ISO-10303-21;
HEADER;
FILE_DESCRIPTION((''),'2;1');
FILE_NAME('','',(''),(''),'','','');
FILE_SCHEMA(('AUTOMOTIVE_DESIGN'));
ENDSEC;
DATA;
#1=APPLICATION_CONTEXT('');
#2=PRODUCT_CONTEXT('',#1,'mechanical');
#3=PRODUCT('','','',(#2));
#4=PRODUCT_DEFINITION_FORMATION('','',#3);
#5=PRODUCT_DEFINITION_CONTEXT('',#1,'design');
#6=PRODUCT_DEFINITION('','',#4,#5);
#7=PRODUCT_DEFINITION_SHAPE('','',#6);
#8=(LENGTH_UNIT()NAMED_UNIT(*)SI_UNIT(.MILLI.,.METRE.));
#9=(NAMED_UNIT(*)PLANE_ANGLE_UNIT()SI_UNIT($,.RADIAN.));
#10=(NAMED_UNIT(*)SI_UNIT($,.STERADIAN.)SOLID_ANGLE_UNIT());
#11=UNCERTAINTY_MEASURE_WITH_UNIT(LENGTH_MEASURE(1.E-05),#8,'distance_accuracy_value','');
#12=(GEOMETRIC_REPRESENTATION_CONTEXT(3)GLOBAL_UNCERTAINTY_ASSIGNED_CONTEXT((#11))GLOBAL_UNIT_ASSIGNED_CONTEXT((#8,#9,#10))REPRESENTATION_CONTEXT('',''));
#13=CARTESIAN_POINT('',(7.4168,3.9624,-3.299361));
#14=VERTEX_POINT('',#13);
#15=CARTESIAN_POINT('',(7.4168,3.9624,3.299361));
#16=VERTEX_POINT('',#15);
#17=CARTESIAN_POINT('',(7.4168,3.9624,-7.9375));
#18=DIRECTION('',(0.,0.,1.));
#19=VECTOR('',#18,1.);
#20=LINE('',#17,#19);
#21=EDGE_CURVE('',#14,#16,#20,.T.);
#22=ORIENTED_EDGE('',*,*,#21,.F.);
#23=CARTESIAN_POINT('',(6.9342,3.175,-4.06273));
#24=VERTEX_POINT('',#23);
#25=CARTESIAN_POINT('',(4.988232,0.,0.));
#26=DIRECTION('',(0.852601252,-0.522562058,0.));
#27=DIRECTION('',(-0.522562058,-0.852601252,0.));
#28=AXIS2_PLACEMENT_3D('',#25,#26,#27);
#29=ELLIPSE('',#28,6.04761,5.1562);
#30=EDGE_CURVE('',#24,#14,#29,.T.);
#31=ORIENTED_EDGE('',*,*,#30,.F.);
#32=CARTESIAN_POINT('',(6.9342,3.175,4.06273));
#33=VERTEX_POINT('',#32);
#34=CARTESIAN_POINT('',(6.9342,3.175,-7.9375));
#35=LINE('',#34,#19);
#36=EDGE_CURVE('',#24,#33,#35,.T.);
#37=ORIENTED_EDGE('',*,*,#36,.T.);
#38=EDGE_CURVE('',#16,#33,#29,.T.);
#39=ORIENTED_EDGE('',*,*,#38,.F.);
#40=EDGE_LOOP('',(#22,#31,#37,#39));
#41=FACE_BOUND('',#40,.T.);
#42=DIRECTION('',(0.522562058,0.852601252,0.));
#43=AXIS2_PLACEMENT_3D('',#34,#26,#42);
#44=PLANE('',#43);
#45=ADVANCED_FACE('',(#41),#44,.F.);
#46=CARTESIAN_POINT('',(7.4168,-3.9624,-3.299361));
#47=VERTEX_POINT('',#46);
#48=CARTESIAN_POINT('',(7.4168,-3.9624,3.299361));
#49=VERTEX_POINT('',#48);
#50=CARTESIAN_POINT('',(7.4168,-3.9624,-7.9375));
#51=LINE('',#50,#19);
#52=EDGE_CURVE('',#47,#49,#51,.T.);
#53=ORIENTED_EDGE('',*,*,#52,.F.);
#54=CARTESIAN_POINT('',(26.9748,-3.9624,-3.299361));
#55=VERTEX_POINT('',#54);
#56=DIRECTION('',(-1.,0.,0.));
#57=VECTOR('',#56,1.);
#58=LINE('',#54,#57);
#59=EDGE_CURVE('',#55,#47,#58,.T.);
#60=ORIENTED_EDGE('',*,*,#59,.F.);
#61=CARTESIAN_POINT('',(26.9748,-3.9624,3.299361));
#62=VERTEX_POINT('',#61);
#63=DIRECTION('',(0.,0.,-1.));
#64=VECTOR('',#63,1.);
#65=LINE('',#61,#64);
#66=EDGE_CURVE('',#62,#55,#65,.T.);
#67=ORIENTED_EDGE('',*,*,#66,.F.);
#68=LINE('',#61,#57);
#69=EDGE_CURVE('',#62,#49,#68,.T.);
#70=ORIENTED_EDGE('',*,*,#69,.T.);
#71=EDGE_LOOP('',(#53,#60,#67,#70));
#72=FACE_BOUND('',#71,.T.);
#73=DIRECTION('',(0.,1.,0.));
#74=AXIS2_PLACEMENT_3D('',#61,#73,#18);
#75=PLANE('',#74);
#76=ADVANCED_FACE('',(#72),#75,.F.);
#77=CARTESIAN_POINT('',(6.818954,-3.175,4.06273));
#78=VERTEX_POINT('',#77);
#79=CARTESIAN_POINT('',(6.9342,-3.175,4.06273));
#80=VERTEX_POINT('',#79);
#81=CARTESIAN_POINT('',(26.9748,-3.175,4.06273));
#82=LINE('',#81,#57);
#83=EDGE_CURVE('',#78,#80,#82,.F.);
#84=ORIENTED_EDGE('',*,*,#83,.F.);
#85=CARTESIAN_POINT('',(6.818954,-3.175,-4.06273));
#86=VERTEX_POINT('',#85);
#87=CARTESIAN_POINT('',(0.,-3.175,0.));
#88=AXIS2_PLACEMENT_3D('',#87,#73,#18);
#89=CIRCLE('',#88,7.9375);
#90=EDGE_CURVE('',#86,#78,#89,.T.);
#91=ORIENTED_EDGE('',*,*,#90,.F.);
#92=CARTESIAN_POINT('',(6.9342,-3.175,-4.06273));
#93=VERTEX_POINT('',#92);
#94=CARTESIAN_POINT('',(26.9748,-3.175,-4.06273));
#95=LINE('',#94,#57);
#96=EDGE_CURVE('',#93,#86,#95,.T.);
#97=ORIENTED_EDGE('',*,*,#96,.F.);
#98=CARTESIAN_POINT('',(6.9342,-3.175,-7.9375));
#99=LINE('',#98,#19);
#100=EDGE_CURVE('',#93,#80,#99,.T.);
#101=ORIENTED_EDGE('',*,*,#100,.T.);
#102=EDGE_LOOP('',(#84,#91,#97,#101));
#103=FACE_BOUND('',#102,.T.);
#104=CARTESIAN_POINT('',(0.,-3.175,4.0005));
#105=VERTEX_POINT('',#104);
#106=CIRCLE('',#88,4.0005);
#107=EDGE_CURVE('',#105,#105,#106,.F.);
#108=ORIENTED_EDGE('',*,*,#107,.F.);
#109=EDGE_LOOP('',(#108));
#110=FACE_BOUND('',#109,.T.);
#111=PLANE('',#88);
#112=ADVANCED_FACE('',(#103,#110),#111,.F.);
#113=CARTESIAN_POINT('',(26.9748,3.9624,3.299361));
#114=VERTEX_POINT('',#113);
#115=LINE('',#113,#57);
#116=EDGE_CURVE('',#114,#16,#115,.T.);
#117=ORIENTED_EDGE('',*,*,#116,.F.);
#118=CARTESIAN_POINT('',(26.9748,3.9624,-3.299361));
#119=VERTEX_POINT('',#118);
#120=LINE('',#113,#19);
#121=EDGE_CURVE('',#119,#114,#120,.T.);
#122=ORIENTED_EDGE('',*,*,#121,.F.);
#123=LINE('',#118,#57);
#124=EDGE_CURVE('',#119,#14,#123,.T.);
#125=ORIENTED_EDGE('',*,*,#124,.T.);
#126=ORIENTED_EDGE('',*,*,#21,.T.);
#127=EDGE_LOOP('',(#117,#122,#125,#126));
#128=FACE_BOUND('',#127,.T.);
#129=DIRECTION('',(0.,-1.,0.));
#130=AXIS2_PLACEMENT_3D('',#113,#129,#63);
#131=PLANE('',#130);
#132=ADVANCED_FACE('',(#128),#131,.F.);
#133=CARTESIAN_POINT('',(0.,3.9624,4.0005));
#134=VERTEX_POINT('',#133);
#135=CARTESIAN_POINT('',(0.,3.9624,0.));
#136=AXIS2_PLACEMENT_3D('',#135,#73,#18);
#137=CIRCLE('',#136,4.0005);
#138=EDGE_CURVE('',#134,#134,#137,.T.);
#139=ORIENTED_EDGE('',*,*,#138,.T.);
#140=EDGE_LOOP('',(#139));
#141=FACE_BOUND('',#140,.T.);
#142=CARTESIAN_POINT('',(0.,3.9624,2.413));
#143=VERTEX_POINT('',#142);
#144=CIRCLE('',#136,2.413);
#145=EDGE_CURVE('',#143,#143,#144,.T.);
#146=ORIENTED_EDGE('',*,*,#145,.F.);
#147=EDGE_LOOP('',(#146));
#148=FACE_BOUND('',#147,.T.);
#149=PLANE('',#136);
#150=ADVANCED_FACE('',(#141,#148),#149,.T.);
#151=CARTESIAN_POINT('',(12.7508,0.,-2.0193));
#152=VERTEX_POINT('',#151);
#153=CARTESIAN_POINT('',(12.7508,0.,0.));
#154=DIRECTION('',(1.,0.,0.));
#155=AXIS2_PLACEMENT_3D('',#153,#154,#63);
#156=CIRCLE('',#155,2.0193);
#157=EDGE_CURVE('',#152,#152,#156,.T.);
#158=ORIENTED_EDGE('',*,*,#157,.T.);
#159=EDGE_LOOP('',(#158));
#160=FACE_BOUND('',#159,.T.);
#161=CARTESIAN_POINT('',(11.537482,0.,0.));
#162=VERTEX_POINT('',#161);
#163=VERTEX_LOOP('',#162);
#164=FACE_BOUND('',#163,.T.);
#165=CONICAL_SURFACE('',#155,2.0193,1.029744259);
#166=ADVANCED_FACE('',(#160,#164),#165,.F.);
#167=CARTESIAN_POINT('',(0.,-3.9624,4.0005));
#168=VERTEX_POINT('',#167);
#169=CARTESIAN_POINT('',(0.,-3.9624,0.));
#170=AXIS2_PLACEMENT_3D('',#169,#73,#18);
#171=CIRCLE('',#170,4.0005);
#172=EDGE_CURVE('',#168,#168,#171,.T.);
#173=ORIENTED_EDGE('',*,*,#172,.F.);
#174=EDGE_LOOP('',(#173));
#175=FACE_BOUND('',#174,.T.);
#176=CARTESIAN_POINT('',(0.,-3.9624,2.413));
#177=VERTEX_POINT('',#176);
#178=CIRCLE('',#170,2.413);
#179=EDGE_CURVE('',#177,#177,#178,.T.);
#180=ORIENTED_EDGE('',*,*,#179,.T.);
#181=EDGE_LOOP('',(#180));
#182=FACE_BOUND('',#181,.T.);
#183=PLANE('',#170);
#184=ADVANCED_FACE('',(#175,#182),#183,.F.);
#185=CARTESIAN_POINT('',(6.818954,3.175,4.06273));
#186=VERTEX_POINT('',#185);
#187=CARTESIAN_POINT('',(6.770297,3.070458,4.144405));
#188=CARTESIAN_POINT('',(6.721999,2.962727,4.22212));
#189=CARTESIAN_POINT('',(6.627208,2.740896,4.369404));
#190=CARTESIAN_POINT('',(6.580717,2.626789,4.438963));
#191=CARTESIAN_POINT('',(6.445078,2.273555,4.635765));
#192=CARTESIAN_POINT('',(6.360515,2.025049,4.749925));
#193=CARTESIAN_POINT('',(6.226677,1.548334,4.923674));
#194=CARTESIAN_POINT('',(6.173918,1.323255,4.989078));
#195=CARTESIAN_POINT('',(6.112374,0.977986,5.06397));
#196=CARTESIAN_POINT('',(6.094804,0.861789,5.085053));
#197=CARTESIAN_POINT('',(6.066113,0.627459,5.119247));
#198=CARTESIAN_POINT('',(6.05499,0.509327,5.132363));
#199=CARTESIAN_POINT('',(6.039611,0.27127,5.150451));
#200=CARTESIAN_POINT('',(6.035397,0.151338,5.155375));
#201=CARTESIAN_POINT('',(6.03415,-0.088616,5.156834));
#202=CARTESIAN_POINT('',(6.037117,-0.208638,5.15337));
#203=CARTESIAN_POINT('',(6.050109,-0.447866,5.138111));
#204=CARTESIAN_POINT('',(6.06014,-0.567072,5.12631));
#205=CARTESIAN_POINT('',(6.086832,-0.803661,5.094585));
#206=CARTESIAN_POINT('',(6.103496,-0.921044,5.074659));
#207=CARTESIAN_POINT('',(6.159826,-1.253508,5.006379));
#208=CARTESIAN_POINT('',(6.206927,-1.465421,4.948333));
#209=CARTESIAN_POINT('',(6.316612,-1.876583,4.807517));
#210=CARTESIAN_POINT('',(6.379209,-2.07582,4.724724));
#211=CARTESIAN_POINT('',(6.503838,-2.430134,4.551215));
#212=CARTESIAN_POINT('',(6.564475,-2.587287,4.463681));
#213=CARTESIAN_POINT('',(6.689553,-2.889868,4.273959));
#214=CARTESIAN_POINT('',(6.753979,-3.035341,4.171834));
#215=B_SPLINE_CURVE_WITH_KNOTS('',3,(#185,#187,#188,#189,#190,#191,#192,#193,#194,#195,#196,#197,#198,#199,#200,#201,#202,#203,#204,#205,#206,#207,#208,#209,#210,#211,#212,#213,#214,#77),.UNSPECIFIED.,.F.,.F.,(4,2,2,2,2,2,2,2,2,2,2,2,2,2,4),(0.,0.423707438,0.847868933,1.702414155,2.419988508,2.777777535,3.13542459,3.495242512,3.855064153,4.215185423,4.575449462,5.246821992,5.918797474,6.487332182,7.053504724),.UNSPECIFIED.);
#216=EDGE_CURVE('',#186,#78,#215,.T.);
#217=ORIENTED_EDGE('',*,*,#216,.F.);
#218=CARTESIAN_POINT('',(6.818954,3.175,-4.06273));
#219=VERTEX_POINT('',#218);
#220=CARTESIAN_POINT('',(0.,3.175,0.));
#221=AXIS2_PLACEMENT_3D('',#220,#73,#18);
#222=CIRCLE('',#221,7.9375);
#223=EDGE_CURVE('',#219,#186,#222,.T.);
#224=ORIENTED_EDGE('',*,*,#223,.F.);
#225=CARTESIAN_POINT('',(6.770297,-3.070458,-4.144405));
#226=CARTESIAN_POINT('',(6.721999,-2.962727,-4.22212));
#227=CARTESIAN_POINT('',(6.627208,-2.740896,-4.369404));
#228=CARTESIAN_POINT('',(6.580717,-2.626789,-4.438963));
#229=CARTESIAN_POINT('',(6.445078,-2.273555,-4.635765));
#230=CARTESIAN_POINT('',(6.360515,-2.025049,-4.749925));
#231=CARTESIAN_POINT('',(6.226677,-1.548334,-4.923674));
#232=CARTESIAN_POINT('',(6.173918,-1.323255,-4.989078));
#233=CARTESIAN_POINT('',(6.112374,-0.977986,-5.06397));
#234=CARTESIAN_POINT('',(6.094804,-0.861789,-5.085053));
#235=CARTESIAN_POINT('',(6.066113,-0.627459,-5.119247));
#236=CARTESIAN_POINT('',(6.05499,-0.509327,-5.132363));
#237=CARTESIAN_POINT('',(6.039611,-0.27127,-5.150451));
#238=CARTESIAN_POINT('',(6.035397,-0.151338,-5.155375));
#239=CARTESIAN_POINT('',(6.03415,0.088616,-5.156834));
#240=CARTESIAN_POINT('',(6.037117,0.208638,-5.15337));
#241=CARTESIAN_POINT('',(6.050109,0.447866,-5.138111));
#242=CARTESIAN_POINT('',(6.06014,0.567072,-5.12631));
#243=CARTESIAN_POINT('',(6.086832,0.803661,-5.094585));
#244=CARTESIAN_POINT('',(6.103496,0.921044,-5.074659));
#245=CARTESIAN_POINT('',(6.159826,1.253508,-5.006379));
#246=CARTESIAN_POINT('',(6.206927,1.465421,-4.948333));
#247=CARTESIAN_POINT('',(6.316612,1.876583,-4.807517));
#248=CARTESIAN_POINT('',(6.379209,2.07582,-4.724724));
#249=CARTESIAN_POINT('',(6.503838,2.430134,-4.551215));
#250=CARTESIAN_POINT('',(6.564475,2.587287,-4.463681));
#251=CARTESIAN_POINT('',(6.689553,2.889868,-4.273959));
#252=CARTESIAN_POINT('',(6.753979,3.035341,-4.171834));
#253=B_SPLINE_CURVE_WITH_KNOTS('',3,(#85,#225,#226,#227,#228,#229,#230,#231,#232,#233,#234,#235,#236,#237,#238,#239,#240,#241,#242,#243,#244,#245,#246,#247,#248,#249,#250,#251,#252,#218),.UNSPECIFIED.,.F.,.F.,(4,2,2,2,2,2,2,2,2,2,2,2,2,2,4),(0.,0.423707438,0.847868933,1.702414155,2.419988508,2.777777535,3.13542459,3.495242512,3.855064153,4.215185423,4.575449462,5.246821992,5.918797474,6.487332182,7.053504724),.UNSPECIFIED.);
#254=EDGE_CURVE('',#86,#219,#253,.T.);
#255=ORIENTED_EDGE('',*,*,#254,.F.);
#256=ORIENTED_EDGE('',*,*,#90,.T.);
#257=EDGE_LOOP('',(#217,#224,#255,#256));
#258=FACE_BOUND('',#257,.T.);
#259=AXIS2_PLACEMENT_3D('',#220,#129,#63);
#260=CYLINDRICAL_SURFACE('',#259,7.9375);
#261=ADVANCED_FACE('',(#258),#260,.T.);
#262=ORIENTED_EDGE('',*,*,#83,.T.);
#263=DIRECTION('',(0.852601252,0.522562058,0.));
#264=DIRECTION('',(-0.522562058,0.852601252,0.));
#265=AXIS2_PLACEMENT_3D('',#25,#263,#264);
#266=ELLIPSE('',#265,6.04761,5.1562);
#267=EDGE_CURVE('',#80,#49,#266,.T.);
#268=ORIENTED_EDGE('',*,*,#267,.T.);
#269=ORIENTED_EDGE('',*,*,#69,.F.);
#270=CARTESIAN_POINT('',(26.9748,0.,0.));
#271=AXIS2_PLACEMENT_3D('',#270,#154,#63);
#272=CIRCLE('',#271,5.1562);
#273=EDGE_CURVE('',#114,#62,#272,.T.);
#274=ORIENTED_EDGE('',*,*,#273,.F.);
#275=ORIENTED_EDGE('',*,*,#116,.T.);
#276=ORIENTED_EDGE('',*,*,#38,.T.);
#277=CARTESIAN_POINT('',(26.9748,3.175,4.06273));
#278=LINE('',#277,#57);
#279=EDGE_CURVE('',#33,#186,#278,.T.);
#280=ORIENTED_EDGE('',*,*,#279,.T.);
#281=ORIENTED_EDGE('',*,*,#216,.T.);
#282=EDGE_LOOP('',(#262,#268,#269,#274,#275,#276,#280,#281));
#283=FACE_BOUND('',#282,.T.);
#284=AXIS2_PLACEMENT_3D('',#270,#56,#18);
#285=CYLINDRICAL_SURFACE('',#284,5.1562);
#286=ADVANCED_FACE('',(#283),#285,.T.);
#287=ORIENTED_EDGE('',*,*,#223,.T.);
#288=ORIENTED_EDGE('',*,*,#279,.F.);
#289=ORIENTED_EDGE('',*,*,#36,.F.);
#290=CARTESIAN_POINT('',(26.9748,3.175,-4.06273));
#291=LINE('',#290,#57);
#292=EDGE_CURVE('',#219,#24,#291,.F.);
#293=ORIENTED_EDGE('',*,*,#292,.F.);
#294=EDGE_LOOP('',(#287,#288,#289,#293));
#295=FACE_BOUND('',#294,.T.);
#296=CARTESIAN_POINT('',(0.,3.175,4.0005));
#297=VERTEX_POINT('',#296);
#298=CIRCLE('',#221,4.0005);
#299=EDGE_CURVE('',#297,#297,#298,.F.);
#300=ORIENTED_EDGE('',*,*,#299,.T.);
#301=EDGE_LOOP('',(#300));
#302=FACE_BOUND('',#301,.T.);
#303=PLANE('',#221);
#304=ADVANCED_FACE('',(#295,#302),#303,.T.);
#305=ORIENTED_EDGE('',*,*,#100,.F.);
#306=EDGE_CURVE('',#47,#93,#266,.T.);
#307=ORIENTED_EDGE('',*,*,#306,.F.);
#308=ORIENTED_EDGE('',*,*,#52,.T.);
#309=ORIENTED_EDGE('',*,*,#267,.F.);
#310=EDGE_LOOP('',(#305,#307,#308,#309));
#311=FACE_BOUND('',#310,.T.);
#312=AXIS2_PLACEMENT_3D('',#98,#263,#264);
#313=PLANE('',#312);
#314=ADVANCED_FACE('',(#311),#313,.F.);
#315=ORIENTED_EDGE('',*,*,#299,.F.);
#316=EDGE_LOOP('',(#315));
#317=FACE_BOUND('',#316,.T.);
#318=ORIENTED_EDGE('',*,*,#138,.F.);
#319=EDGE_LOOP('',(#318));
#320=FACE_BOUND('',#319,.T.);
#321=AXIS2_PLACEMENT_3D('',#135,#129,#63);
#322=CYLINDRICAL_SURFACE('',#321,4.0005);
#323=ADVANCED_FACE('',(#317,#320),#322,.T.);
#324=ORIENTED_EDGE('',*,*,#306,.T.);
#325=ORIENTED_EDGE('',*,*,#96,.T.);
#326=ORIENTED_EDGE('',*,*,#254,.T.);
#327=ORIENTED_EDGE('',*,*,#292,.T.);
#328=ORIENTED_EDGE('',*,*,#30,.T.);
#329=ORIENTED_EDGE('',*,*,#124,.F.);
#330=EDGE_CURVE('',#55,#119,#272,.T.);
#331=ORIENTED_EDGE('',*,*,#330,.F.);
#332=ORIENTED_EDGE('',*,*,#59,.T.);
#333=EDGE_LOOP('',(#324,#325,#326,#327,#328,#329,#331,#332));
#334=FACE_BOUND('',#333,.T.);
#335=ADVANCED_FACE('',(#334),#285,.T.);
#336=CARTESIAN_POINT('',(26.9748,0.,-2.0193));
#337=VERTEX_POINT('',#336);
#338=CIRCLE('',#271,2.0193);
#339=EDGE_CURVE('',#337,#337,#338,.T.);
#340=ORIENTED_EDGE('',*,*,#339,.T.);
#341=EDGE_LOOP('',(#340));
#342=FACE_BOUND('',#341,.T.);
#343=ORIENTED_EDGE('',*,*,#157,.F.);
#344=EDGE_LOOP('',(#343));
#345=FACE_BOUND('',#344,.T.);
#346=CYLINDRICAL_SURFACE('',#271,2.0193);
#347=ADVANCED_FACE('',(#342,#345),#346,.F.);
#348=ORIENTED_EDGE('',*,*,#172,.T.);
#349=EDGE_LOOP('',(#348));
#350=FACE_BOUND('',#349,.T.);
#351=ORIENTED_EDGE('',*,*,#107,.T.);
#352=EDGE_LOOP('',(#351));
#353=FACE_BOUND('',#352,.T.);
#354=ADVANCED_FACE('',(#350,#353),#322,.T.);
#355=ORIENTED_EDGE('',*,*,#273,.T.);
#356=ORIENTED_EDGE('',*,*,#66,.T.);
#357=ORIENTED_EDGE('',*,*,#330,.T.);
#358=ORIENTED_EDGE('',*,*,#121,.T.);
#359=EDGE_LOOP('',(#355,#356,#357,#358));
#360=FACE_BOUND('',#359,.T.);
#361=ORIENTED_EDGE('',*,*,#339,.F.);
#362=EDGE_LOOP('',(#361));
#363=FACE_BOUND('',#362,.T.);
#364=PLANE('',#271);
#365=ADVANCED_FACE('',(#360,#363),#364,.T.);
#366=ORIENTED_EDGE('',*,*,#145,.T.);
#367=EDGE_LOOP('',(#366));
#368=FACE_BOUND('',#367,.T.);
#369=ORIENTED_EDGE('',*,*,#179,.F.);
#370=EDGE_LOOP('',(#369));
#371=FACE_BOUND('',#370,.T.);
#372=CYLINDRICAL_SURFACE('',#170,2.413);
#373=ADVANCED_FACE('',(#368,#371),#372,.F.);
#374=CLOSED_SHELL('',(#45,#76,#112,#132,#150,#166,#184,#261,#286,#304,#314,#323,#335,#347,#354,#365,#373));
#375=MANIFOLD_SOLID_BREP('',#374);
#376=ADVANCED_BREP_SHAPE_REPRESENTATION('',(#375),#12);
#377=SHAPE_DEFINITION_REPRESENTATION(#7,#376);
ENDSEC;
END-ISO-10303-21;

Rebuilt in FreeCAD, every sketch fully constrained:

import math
import FreeCAD as App
import Part
import Sketcher
from FreeCAD import Vector
Q = App.Units.Quantity


def add_polygon(sketch, points):
    """Adds a closed chain of lines whose ends are joined by coincident constraints."""
    first, n = sketch.GeometryCount, len(points)
    for a, b in zip(points, points[1:] + points[:1]):
        sketch.addGeometry(Part.LineSegment(App.Vector(*a, 0), App.Vector(*b, 0)), False)
    for i in range(n):
        sketch.addConstraint(Sketcher.Constraint("Coincident", first + i, 2, first + (i + 1) % n, 1))

doc = App.newDocument("Part")
params = doc.addObject("Spreadsheet::Sheet", "Params")
for row, (alias, value) in enumerate([
    ("sketch1_diameter", "0.625 in"),
    ("pad1_length", "0.25 in"),
    ("sketch2_radius", "0.203 in"),
    ("pad2_length", "1.062 in"),
    ("sketch3_width", "0.273 in"),
    ("sketch3_width2", "0.292 in"),
    ("sketch3_height", "0.031 in"),
    ("pocket1_length", "0.625 in"),
    ("sketch4_diameter", "0.315 in"),
    ("pad3_length", "0.312 in"),
    ("sketch5_diameter", "0.19 in"),
    ("pocket2_length", "0.312 in"),
    ("sketch6_diameter", "0.159 in"),
    ("hole_diameter", "0.159 in"),
    ("hole_depth", "0.56 in"),
], start=1):
    params.set(f"A{row}", alias)
    params.set(f"B{row}", "=" + value)
    params.setAlias(f"B{row}", alias)

body = doc.addObject("PartDesign::Body", "Body")

# Sketch on XZ plane
sketch1 = doc.addObject("Sketcher::SketchObject", "Sketch")
body.addObject(sketch1)
sketch1.AttachmentSupport = (doc.XZ_Plane, [""])
sketch1.MapMode = "FlatFace"
sketch1.addGeometry(Part.Circle(Vector(0, 0, 0), Vector(0, 0, 1), 7.9375), False)
sketch1.addConstraint([
    Sketcher.Constraint("Coincident", 0, 3, -1, 1),
    Sketcher.Constraint("Diameter", 0, Q("0.625 in")),
])
sketch1.setExpression("Constraints[1]", "Params.sketch1_diameter")
pad1 = doc.addObject("PartDesign::Pad", "Pad")
body.addObject(pad1)
pad1.Profile = sketch1
pad1.setExpression("Length", "Params.pad1_length")
pad1.Midplane = True

# Sketch on YZ plane
sketch2 = doc.addObject("Sketcher::SketchObject", "Sketch001")
body.addObject(sketch2)
sketch2.AttachmentSupport = (doc.YZ_Plane, [""])
sketch2.MapMode = "FlatFace"
sketch2.addGeometry([
    Part.LineSegment(Vector(-3.9624, 3.299361, 0), Vector(-3.9624, -3.299361, 0)),
    Part.ArcOfCircle(Part.Circle(Vector(0, 0, 0), Vector(0, 0, 1), 5.1562), math.radians(-140.216955), math.radians(-39.783045)),
    Part.LineSegment(Vector(3.9624, -3.299361, 0), Vector(3.9624, 3.299361, 0)),
    Part.ArcOfCircle(Part.Circle(Vector(0, 0, 0), Vector(0, 0, 1), 5.1562), math.radians(39.783045), math.radians(140.216955)),
], False)
sketch2.addConstraint([
    Sketcher.Constraint("Coincident", 0, 2, 1, 1),
    Sketcher.Constraint("Coincident", 1, 2, 2, 1),
    Sketcher.Constraint("Coincident", 2, 2, 3, 1),
    Sketcher.Constraint("Coincident", 3, 2, 0, 1),
    Sketcher.Constraint("Vertical", 0),
    Sketcher.Constraint("Vertical", 2),
    Sketcher.Constraint("Coincident", 1, 3, -1, 1),
    Sketcher.Constraint("Coincident", 3, 3, -1, 1),
    Sketcher.Constraint("Equal", 1, 3),
    Sketcher.Constraint("Horizontal", 0, 2, 1, 2),
    Sketcher.Constraint("Radius", 1, Q("0.203 in")),
    Sketcher.Constraint("DistanceX", 0, 2, -1, 1, Q("0.156 in")),
])
sketch2.setExpression("Constraints[10]", "Params.sketch2_radius")
pad2 = doc.addObject("PartDesign::Pad", "Pad001")
body.addObject(pad2)
pad2.Profile = sketch2
pad2.setExpression("Length", "Params.pad2_length")

# Sketch on XY plane
sketch3 = doc.addObject("Sketcher::SketchObject", "Sketch002")
body.addObject(sketch3)
sketch3.AttachmentSupport = (doc.XY_Plane, [""])
sketch3.MapMode = "FlatFace"
add_polygon(sketch3, [(0, 3.9624), (0, 3.175), (6.9342, 3.175), (7.4168, 3.9624)])  # lines 0-3
add_polygon(sketch3, [(0, -3.9624), (7.4168, -3.9624), (6.9342, -3.175), (0, -3.175)])  # lines 4-7
sketch3.addConstraint([
    Sketcher.Constraint("Vertical", 0),
    Sketcher.Constraint("Horizontal", 1),
    Sketcher.Constraint("Horizontal", 3),
    Sketcher.Constraint("Horizontal", 4),
    Sketcher.Constraint("Horizontal", 6),
    Sketcher.Constraint("Vertical", 7),
    Sketcher.Constraint("Symmetric", 0, 2, 6, 2, -1, 1),
    Sketcher.Constraint("Symmetric", 2, 2, 4, 2, -1),
    Sketcher.Constraint("PointOnObject", 0, 2, -2),
    Sketcher.Constraint("Vertical", 1, 2, 5, 2),
    Sketcher.Constraint("DistanceX", 1, 1, 1, 2, Q("0.273 in")),
    Sketcher.Constraint("DistanceX", 3, 2, 3, 1, Q("0.292 in")),
    Sketcher.Constraint("DistanceY", 0, 2, 0, 1, Q("0.031 in")),
    Sketcher.Constraint("DistanceY", 5, 2, 1, 2, Q("0.25 in")),
])
sketch3.setExpression("Constraints[18]", "Params.sketch3_width")
sketch3.setExpression("Constraints[19]", "Params.sketch3_width2")
sketch3.setExpression("Constraints[20]", "Params.sketch3_height")
pocket1 = doc.addObject("PartDesign::Pocket", "Pocket")
body.addObject(pocket1)
pocket1.Profile = sketch3
pocket1.setExpression("Length", "Params.pocket1_length")
pocket1.Midplane = True

# Sketch on XZ plane
sketch4 = doc.addObject("Sketcher::SketchObject", "Sketch003")
body.addObject(sketch4)
sketch4.AttachmentSupport = (doc.XZ_Plane, [""])
sketch4.MapMode = "FlatFace"
sketch4.addGeometry(Part.Circle(Vector(0, 0, 0), Vector(0, 0, 1), 4.0005), False)
sketch4.addConstraint([
    Sketcher.Constraint("Coincident", 0, 3, -1, 1),
    Sketcher.Constraint("Diameter", 0, Q("0.315 in")),
])
sketch4.setExpression("Constraints[1]", "Params.sketch4_diameter")
pad3 = doc.addObject("PartDesign::Pad", "Pad002")
body.addObject(pad3)
pad3.Profile = sketch4
pad3.setExpression("Length", "Params.pad3_length")
pad3.Midplane = True

# Sketch on XZ plane
sketch5 = doc.addObject("Sketcher::SketchObject", "Sketch004")
body.addObject(sketch5)
sketch5.AttachmentSupport = (doc.XZ_Plane, [""])
sketch5.MapMode = "FlatFace"
sketch5.AttachmentOffset = App.Placement(Vector(0, 0, -0.156 * 25.4), App.Rotation())
sketch5.addGeometry(Part.Circle(Vector(0, 0, 0), Vector(0, 0, 1), 2.413), False)
sketch5.addConstraint([
    Sketcher.Constraint("Coincident", 0, 3, -1, 1),
    Sketcher.Constraint("Diameter", 0, Q("0.19 in")),
])
sketch5.setExpression("Constraints[1]", "Params.sketch5_diameter")
pocket2 = doc.addObject("PartDesign::Pocket", "Pocket001")
body.addObject(pocket2)
pocket2.Profile = sketch5
pocket2.setExpression("Length", "Params.pocket2_length")
pocket2.Reversed = True

# Sketch on YZ plane
sketch6 = doc.addObject("Sketcher::SketchObject", "Sketch005")
body.addObject(sketch6)
sketch6.AttachmentSupport = (doc.YZ_Plane, [""])
sketch6.MapMode = "FlatFace"
sketch6.AttachmentOffset = App.Placement(Vector(0, 0, 1.062 * 25.4), App.Rotation())
sketch6.addGeometry(Part.Circle(Vector(0, 0, 0), Vector(0, 0, 1), 2.0193), False)
sketch6.addConstraint([
    Sketcher.Constraint("Coincident", 0, 3, -1, 1),
    Sketcher.Constraint("Diameter", 0, Q("0.159 in")),
])
sketch6.setExpression("Constraints[1]", "Params.sketch6_diameter")
doc.recompute()
hole = doc.addObject("PartDesign::Hole", "Hole")
body.addObject(hole)
hole.Profile = sketch6
hole.ThreadType = "None"
hole.setExpression("Diameter", "Params.hole_diameter")
hole.DepthType = "Dimension"
hole.setExpression("Depth", "Params.hole_depth")
hole.DrillPoint = "Angled"
hole.DrillPointAngle = 118

doc.recompute()
